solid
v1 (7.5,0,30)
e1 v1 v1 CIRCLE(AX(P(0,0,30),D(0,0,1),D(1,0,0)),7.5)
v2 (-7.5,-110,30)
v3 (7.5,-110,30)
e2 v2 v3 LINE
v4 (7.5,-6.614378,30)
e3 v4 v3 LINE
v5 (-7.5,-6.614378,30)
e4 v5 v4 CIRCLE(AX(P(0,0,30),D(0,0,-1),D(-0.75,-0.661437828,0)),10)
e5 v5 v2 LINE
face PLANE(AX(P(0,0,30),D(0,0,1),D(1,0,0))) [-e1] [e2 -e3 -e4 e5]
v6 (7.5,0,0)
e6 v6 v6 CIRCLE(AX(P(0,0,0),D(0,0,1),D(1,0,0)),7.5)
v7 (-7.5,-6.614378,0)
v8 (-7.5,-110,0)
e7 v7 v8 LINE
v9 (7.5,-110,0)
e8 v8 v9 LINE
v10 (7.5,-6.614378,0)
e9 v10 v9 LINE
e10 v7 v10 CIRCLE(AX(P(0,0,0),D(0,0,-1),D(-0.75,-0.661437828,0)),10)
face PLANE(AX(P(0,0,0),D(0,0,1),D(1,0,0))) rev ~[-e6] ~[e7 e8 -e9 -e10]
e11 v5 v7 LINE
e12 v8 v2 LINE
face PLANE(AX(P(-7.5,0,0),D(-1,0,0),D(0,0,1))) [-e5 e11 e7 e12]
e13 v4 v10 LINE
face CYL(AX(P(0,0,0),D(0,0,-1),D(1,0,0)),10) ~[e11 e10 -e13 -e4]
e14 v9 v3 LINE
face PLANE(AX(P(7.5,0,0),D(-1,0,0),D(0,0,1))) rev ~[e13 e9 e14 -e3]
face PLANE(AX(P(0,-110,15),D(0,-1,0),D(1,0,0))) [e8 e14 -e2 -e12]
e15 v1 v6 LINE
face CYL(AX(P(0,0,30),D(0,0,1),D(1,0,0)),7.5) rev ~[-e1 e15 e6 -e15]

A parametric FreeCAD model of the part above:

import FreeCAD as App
import Part
import Sketcher


def add_polygon(sketch, points):
    """Adds a closed chain of lines whose ends are joined by coincident constraints."""
    first, n = sketch.GeometryCount, len(points)
    for a, b in zip(points, points[1:] + points[:1]):
        sketch.addGeometry(Part.LineSegment(App.Vector(*a, 0), App.Vector(*b, 0)), False)
    for i in range(n):
        sketch.addConstraint(Sketcher.Constraint("Coincident", first + i, 2, first + (i + 1) % n, 1))

doc = App.newDocument("Part")
body = doc.addObject("PartDesign::Body", "Body")

# Sketch on XY plane
sketch1 = doc.addObject("Sketcher::SketchObject", "Sketch")
body.addObject(sketch1)
sketch1.AttachmentSupport = (doc.XY_Plane, [""])
sketch1.MapMode = "FlatFace"
sketch1.addGeometry(Part.Circle(App.Vector(0, 0, 0), App.Vector(0, 0, 1), 10), False)
sketch1.addConstraint(Sketcher.Constraint("Coincident", 0, 3, -1, 1))
sketch1.addConstraint(Sketcher.Constraint("Diameter", 0, 20.0))
pad1 = doc.addObject("PartDesign::Pad", "Pad")
body.addObject(pad1)
pad1.Profile = sketch1
pad1.Length = 30

# Sketch on XZ plane
sketch2 = doc.addObject("Sketcher::SketchObject", "Sketch001")
body.addObject(sketch2)
sketch2.AttachmentSupport = (doc.XZ_Plane, [""])
sketch2.MapMode = "FlatFace"
add_polygon(sketch2, [(-8, 30), (-8, 0), (8, 0), (8, 30)])  # lines 0-3
sketch2.addConstraint(Sketcher.Constraint("Vertical", 0))
sketch2.addConstraint(Sketcher.Constraint("Horizontal", 1))
sketch2.addConstraint(Sketcher.Constraint("Vertical", 2))
sketch2.addConstraint(Sketcher.Constraint("Horizontal", 3))
sketch2.addConstraint(Sketcher.Constraint("Symmetric", 0, 2, 1, 2, -1, 1))
sketch2.addConstraint(Sketcher.Constraint("DistanceX", 1, 1, 1, 2, 15.0))
sketch2.addConstraint(Sketcher.Constraint("DistanceY", 0, 2, 0, 1, 30.0))
pad2 = doc.addObject("PartDesign::Pad", "Pad001")
body.addObject(pad2)
pad2.Profile = sketch2
pad2.Length = 110

# Sketch on XY plane
sketch3 = doc.addObject("Sketcher::SketchObject", "Sketch002")
body.addObject(sketch3)
sketch3.AttachmentSupport = (doc.XY_Plane, [""])
sketch3.MapMode = "FlatFace"
sketch3.AttachmentOffset = App.Placement(App.Vector(0, 0, 30), App.Rotation())
sketch3.addGeometry(Part.Circle(App.Vector(0, 0, 0), App.Vector(0, 0, 1), 8), False)
sketch3.addConstraint(Sketcher.Constraint("Coincident", 0, 3, -1, 1))
sketch3.addConstraint(Sketcher.Constraint("Diameter", 0, 15.0))
pocket1 = doc.addObject("PartDesign::Pocket", "Pocket")
body.addObject(pocket1)
pocket1.Profile = sketch3
pocket1.Type = "ThroughAll"

doc.recompute()
